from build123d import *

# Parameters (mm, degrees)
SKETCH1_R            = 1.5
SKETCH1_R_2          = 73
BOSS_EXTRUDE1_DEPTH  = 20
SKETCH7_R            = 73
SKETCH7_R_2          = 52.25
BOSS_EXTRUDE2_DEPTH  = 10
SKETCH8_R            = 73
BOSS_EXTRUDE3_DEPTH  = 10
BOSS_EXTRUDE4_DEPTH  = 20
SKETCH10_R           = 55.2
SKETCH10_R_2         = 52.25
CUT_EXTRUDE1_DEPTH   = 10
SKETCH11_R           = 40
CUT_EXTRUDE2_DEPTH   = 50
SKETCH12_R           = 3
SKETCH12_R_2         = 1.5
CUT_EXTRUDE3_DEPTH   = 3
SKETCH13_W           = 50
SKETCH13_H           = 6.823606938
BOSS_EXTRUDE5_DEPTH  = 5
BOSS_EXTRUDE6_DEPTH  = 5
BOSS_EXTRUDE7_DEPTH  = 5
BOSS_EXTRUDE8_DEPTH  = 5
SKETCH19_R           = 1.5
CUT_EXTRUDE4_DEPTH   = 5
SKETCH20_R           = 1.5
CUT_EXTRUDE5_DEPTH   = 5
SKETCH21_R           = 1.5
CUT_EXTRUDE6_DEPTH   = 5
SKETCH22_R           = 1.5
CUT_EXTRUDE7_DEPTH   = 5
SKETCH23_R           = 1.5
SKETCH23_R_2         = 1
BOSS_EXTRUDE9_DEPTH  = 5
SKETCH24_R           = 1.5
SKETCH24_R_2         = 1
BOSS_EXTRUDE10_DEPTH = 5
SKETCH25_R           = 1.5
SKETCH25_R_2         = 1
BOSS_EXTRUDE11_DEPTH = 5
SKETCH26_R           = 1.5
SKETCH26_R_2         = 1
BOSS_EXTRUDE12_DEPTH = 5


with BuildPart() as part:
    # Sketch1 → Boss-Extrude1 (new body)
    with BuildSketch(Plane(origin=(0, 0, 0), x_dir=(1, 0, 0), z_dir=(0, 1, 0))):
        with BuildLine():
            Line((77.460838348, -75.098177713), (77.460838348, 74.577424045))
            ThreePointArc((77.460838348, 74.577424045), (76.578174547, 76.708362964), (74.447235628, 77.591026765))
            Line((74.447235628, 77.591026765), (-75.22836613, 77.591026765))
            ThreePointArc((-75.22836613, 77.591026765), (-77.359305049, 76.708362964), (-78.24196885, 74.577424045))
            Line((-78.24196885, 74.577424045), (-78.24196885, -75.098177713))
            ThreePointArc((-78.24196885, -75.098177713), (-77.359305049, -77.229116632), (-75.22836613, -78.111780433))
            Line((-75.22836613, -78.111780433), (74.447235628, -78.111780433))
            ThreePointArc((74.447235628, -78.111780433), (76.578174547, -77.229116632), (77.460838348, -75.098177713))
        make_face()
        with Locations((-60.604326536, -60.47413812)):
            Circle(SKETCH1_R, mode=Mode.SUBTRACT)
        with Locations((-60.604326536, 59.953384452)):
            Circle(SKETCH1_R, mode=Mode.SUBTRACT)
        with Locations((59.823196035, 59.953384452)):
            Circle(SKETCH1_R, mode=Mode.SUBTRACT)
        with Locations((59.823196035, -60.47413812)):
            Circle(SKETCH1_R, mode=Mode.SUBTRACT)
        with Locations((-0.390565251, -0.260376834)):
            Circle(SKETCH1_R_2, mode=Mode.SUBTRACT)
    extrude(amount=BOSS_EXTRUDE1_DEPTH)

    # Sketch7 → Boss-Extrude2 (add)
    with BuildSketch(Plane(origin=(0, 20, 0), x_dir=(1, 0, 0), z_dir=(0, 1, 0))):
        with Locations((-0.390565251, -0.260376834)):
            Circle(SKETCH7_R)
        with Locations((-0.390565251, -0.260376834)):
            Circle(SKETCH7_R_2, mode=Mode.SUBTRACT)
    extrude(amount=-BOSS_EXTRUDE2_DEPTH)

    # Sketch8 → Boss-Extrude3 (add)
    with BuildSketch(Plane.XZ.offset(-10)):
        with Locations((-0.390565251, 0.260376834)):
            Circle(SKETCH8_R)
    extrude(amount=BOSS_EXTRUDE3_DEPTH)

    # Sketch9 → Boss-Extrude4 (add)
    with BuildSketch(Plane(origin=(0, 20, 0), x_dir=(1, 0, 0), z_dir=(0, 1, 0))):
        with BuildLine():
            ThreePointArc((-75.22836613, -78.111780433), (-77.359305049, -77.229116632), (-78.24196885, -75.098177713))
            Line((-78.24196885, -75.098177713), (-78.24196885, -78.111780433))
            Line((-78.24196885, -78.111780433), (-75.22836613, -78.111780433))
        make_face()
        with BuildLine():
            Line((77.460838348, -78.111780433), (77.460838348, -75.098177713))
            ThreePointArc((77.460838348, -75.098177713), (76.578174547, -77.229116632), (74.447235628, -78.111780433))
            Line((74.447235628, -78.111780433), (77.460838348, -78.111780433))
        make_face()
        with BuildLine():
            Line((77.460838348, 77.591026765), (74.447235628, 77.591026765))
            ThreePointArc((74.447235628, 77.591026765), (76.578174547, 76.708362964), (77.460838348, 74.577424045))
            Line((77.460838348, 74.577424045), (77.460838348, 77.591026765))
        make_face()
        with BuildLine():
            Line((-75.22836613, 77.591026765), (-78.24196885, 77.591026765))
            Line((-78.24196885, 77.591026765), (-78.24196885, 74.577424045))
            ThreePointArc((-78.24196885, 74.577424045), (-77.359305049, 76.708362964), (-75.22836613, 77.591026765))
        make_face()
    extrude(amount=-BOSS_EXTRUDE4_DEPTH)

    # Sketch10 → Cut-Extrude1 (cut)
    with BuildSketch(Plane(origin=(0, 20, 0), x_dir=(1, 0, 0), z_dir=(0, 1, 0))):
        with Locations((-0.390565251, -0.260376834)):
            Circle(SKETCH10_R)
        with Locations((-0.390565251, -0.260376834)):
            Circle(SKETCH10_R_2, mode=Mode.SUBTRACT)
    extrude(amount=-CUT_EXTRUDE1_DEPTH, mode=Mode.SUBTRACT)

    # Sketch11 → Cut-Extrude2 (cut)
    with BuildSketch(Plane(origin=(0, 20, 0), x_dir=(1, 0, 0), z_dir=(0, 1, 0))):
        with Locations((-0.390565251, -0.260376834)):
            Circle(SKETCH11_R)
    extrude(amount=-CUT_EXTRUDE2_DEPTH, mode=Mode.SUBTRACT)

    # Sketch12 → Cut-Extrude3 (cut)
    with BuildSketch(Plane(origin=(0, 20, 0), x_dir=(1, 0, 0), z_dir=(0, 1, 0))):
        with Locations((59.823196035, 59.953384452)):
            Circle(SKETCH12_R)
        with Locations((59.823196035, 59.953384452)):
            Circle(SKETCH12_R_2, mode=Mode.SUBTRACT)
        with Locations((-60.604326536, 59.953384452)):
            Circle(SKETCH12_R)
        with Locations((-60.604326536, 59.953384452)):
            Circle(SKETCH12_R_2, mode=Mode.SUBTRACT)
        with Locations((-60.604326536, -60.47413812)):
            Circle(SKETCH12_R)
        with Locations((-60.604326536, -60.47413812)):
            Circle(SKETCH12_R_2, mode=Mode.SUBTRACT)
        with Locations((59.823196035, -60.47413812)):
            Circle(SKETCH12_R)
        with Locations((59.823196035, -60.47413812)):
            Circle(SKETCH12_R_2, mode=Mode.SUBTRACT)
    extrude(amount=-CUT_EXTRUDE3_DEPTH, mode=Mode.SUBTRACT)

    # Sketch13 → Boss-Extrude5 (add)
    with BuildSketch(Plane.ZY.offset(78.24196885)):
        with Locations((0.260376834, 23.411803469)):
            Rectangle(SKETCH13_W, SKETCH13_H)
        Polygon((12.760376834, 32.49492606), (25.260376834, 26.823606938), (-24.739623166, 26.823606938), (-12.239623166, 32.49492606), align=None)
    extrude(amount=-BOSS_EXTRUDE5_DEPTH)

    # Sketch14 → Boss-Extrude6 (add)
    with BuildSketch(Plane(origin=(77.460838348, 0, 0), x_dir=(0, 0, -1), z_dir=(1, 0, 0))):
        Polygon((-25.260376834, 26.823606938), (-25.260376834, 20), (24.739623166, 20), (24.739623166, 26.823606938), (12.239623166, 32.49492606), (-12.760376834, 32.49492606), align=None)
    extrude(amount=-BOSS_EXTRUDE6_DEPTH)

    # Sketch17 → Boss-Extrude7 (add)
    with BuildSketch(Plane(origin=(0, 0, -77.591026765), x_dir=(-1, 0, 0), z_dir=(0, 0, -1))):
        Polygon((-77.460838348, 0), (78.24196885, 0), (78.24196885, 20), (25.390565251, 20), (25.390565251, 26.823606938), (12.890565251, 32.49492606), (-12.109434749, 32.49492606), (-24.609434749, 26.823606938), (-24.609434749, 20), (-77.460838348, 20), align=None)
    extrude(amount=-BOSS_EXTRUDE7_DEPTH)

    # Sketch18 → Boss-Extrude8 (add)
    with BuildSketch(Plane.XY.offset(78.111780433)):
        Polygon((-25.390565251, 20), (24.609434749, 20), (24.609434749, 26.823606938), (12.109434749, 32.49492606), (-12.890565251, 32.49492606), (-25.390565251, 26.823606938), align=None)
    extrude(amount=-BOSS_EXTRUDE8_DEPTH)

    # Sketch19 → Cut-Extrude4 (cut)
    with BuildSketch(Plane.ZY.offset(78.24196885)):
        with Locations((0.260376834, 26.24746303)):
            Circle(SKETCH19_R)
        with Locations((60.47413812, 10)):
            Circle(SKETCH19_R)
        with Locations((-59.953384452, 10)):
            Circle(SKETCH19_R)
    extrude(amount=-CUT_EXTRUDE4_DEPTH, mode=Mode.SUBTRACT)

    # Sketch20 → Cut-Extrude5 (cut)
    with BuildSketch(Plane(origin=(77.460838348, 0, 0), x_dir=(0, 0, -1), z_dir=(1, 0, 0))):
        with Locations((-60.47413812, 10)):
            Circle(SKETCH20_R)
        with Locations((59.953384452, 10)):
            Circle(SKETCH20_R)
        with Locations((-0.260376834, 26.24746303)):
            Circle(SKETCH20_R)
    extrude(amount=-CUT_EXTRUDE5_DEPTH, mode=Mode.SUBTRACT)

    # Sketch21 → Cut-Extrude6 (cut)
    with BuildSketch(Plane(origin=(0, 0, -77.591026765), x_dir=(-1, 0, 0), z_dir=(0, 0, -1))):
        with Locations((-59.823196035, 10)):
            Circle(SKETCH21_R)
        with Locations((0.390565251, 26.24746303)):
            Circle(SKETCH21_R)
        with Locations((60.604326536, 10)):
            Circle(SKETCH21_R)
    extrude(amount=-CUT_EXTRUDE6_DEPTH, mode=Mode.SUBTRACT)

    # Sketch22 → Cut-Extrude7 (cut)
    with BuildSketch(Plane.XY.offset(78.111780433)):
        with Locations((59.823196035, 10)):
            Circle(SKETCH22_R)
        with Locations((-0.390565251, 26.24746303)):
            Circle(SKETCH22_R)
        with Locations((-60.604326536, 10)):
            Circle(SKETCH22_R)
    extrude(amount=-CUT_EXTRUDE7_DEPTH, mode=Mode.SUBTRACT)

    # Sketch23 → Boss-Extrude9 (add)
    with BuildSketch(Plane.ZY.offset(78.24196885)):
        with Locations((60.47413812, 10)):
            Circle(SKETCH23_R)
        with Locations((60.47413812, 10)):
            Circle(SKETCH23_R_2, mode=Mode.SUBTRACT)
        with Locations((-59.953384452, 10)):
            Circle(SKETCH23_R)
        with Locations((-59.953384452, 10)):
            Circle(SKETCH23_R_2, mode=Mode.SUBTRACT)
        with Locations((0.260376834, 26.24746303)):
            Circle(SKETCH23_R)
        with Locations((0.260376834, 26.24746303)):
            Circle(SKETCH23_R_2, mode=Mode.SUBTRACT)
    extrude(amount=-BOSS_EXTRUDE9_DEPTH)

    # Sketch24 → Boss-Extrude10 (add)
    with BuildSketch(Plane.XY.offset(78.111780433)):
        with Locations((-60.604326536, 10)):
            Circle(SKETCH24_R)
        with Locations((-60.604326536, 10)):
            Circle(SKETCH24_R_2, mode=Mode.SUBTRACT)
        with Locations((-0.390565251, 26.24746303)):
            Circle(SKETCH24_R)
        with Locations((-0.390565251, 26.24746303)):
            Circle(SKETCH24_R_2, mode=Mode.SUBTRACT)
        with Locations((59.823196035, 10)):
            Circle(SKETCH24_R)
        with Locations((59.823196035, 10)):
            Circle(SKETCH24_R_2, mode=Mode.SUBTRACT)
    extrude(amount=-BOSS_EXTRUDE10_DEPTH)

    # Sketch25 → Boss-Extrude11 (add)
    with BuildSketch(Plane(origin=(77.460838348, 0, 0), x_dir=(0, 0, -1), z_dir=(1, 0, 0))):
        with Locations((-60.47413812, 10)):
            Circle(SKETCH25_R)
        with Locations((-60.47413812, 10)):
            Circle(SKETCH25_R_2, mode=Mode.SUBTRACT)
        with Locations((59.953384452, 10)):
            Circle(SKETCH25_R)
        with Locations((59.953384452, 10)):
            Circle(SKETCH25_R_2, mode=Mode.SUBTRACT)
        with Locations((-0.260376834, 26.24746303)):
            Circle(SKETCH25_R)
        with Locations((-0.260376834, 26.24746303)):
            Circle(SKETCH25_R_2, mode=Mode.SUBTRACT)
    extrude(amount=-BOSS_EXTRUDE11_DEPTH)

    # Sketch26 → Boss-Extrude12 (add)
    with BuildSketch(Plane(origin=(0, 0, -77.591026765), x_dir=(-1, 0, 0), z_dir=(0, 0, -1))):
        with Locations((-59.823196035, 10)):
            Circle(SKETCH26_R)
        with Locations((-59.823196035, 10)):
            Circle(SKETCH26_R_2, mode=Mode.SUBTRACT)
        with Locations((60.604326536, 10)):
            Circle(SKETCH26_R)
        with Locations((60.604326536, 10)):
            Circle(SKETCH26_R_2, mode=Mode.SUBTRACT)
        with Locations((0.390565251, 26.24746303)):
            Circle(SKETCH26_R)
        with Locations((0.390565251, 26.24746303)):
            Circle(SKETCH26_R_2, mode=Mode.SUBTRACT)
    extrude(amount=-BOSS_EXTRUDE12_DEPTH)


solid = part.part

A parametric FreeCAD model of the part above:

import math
import FreeCAD as App
import Part
import Sketcher


def add_polygon(sketch, points):
    """Adds a closed chain of lines whose ends are joined by coincident constraints."""
    first, n = sketch.GeometryCount, len(points)
    for a, b in zip(points, points[1:] + points[:1]):
        sketch.addGeometry(Part.LineSegment(App.Vector(*a, 0), App.Vector(*b, 0)), False)
    for i in range(n):
        sketch.addConstraint(Sketcher.Constraint("Coincident", first + i, 2, first + (i + 1) % n, 1))

doc = App.newDocument("Part")
body = doc.addObject("PartDesign::Body", "Body")

sketch1 = body.newObject("Sketcher::SketchObject", "Sketch")
sketch1.AttachmentSupport = (doc.getObject("XZ_Plane"), [""])
sketch1.MapMode = "FlatFace"
sketch1.addGeometry(Part.LineSegment(App.Vector(77.5, 75.1, 0), App.Vector(77.5, -74.6, 0)), False)
sketch1.addGeometry(Part.ArcOfCircle(Part.Circle(App.Vector(74.4, -74.6, 0), App.Vector(0, 0, 1), 3), math.radians(-90), math.radians(0)), False)
sketch1.addGeometry(Part.LineSegment(App.Vector(74.4, -77.6, 0), App.Vector(-75.2, -77.6, 0)), False)
sketch1.addGeometry(Part.ArcOfCircle(Part.Circle(App.Vector(-75.2, -74.6, 0), App.Vector(0, 0, 1), 3), math.radians(180), math.radians(270)), False)
sketch1.addGeometry(Part.LineSegment(App.Vector(-78.2, -74.6, 0), App.Vector(-78.2, 75.1, 0)), False)
sketch1.addGeometry(Part.ArcOfCircle(Part.Circle(App.Vector(-75.2, 75.1, 0), App.Vector(0, 0, 1), 3), math.radians(90), math.radians(180)), False)
sketch1.addGeometry(Part.LineSegment(App.Vector(-75.2, 78.1, 0), App.Vector(74.4, 78.1, 0)), False)
sketch1.addGeometry(Part.ArcOfCircle(Part.Circle(App.Vector(74.4, 75.1, 0), App.Vector(0, 0, 1), 3), math.radians(0), math.radians(90)), False)
sketch1.addGeometry(Part.Circle(App.Vector(-60.6, 60.5, 0), App.Vector(0, 0, 1), 1.5), False)
sketch1.addGeometry(Part.Circle(App.Vector(59.8, 60.5, 0), App.Vector(0, 0, 1), 1.5), False)
sketch1.addGeometry(Part.Circle(App.Vector(-60.6, -60, 0), App.Vector(0, 0, 1), 1.5), False)
sketch1.addGeometry(Part.Circle(App.Vector(-0.4, 0.3, 0), App.Vector(0, 0, 1), 73), False)
sketch1.addGeometry(Part.Circle(App.Vector(59.8, -60, 0), App.Vector(0, 0, 1), 1.5), False)
sketch1.addConstraint(Sketcher.Constraint("Tangent", 0, 2, 1, 2))
sketch1.addConstraint(Sketcher.Constraint("Tangent", 1, 1, 2, 1))
sketch1.addConstraint(Sketcher.Constraint("Tangent", 2, 2, 3, 2))
sketch1.addConstraint(Sketcher.Constraint("Tangent", 3, 1, 4, 1))
sketch1.addConstraint(Sketcher.Constraint("Tangent", 4, 2, 5, 2))
sketch1.addConstraint(Sketcher.Constraint("Tangent", 5, 1, 6, 1))
sketch1.addConstraint(Sketcher.Constraint("Tangent", 6, 2, 7, 2))
sketch1.addConstraint(Sketcher.Constraint("Tangent", 7, 1, 0, 1))
sketch1.addConstraint(Sketcher.Constraint("Vertical", 0))
sketch1.addConstraint(Sketcher.Constraint("Horizontal", 2))
sketch1.addConstraint(Sketcher.Constraint("Vertical", 4))
sketch1.addConstraint(Sketcher.Constraint("Horizontal", 6))
sketch1.addConstraint(Sketcher.Constraint("Equal", 1, 3))
sketch1.addConstraint(Sketcher.Constraint("Equal", 3, 5))
sketch1.addConstraint(Sketcher.Constraint("Equal", 5, 7))
sketch1.addConstraint(Sketcher.Constraint("Equal", 8, 9))
sketch1.addConstraint(Sketcher.Constraint("Equal", 9, 10))
sketch1.addConstraint(Sketcher.Constraint("Equal", 10, 12))
sketch1.addConstraint(Sketcher.Constraint("Horizontal", 8, 3, 9, 3))
sketch1.addConstraint(Sketcher.Constraint("Horizontal", 10, 3, 12, 3))
sketch1.addConstraint(Sketcher.Constraint("Vertical", 8, 3, 10, 3))
sketch1.addConstraint(Sketcher.Constraint("Vertical", 9, 3, 12, 3))
sketch1.addConstraint(Sketcher.Constraint("Equal", 6, 0))
sketch1.addConstraint(Sketcher.Constraint("Diameter", 8, 3.0))
sketch1.addConstraint(Sketcher.Constraint("Diameter", 11, 146.0))
sketch1.addConstraint(Sketcher.Constraint("DistanceX", 2, 2, 2, 1, 149.675602))
sketch1.addConstraint(Sketcher.Constraint("Radius", 1, 3.013603))
sketch1.addConstraint(Sketcher.Constraint("DistanceX", 11, 3, 1, 3, 74.837801))
sketch1.addConstraint(Sketcher.Constraint("DistanceY", 1, 3, 11, 3, 74.837801))
sketch1.addConstraint(Sketcher.Constraint("DistanceY", -1, 1, 8, 3, 60.474138))
sketch1.addConstraint(Sketcher.Constraint("DistanceX", -1, 1, 0, 2, 77.460838))
sketch1.addConstraint(Sketcher.Constraint("DistanceY", -1, 1, 5, 1, 78.11178))
sketch1.addConstraint(Sketcher.Constraint("DistanceX", 5, 3, 8, 3, 14.62404))
sketch1.addConstraint(Sketcher.Constraint("DistanceX", 9, 3, 7, 3, 14.62404))
sketch1.addConstraint(Sketcher.Constraint("DistanceY", 3, 3, 10, 3, 14.62404))
pad1 = body.newObject("PartDesign::Pad", "Pad")
pad1.Profile = sketch1
pad1.Length = 20
pad1.Reversed = True

sketch2 = body.newObject("Sketcher::SketchObject", "Sketch001")
sketch2.AttachmentSupport = (doc.getObject("XZ_Plane"), [""])
sketch2.MapMode = "FlatFace"
sketch2.AttachmentOffset = App.Placement(App.Vector(0, 0, -20), App.Rotation())
sketch2.addGeometry(Part.Circle(App.Vector(0, 0, 0), App.Vector(0, 0, 1), 73), False)
sketch2.addGeometry(Part.Circle(App.Vector(0, 0, 0), App.Vector(0, 0, 1), 52), False)
sketch2.addConstraint(Sketcher.Constraint("Coincident", 1, 3, 0, 3))
sketch2.addConstraint(Sketcher.Constraint("Diameter", 0, 146.0))
sketch2.addConstraint(Sketcher.Constraint("Diameter", 1, 104.5))
sketch2.addConstraint(Sketcher.Constraint("DistanceX", 0, 3, -1, 1, 0.390565))
sketch2.addConstraint(Sketcher.Constraint("DistanceY", -1, 1, 0, 3, 0.260377))
pad2 = body.newObject("PartDesign::Pad", "Pad001")
pad2.Profile = sketch2
pad2.Length = 10

sketch3 = body.newObject("Sketcher::SketchObject", "Sketch002")
sketch3.AttachmentSupport = (doc.getObject("XZ_Plane"), [""])
sketch3.MapMode = "FlatFace"
sketch3.AttachmentOffset = App.Placement(App.Vector(0, 0, -10), App.Rotation())
sketch3.addGeometry(Part.Circle(App.Vector(0, 0, 0), App.Vector(0, 0, 1), 73), False)
sketch3.addConstraint(Sketcher.Constraint("Diameter", 0, 146.0))
sketch3.addConstraint(Sketcher.Constraint("DistanceX", 0, 3, -1, 1, 0.390565))
sketch3.addConstraint(Sketcher.Constraint("DistanceY", -1, 1, 0, 3, 0.260377))
pad3 = body.newObject("PartDesign::Pad", "Pad002")
pad3.Profile = sketch3
pad3.Length = 10

sketch4 = body.newObject("Sketcher::SketchObject", "Sketch003")
sketch4.AttachmentSupport = (doc.getObject("XZ_Plane"), [""])
sketch4.MapMode = "FlatFace"
sketch4.AttachmentOffset = App.Placement(App.Vector(0, 0, -20), App.Rotation())
sketch4.addGeometry(Part.ArcOfCircle(Part.Circle(App.Vector(-75.2, 75.1, 0), App.Vector(0, 0, 1), 3), math.radians(90), math.radians(180)), False)
sketch4.addGeometry(Part.LineSegment(App.Vector(-78.2, 75.1, 0), App.Vector(-78.2, 78.1, 0)), False)
sketch4.addGeometry(Part.LineSegment(App.Vector(-78.2, 78.1, 0), App.Vector(-75.2, 78.1, 0)), False)
sketch4.addGeometry(Part.LineSegment(App.Vector(77.5, 78.1, 0), App.Vector(77.5, 75.1, 0)), False)
sketch4.addGeometry(Part.ArcOfCircle(Part.Circle(App.Vector(74.4, 75.1, 0), App.Vector(0, 0, 1), 3), math.radians(0), math.radians(90)), False)
sketch4.addGeometry(Part.LineSegment(App.Vector(74.4, 78.1, 0), App.Vector(77.5, 78.1, 0)), False)
sketch4.addGeometry(Part.LineSegment(App.Vector(77.5, -77.6, 0), App.Vector(74.4, -77.6, 0)), False)
sketch4.addGeometry(Part.ArcOfCircle(Part.Circle(App.Vector(74.4, -74.6, 0), App.Vector(0, 0, 1), 3), math.radians(-90), math.radians(0)), False)
sketch4.addGeometry(Part.LineSegment(App.Vector(77.5, -74.6, 0), App.Vector(77.5, -77.6, 0)), False)
sketch4.addGeometry(Part.LineSegment(App.Vector(-75.2, -77.6, 0), App.Vector(-78.2, -77.6, 0)), False)
sketch4.addGeometry(Part.LineSegment(App.Vector(-78.2, -77.6, 0), App.Vector(-78.2, -74.6, 0)), False)
sketch4.addGeometry(Part.ArcOfCircle(Part.Circle(App.Vector(-75.2, -74.6, 0), App.Vector(0, 0, 1), 3), math.radians(180), math.radians(270)), False)
sketch4.addConstraint(Sketcher.Constraint("Tangent", 0, 2, 1, 1))
sketch4.addConstraint(Sketcher.Constraint("Coincident", 1, 2, 2, 1))
sketch4.addConstraint(Sketcher.Constraint("Tangent", 2, 2, 0, 1))
sketch4.addConstraint(Sketcher.Constraint("Tangent", 3, 2, 4, 1))
sketch4.addConstraint(Sketcher.Constraint("Tangent", 4, 2, 5, 1))
sketch4.addConstraint(Sketcher.Constraint("Coincident", 5, 2, 3, 1))
sketch4.addConstraint(Sketcher.Constraint("Tangent", 6, 2, 7, 1))
sketch4.addConstraint(Sketcher.Constraint("Tangent", 7, 2, 8, 1))
sketch4.addConstraint(Sketcher.Constraint("Coincident", 8, 2, 6, 1))
sketch4.addConstraint(Sketcher.Constraint("Coincident", 9, 2, 10, 1))
sketch4.addConstraint(Sketcher.Constraint("Tangent", 10, 2, 11, 1))
sketch4.addConstraint(Sketcher.Constraint("Tangent", 11, 2, 9, 1))
sketch4.addConstraint(Sketcher.Constraint("Vertical", 1))
sketch4.addConstraint(Sketcher.Constraint("Horizontal", 2))
sketch4.addConstraint(Sketcher.Constraint("Vertical", 3))
sketch4.addConstraint(Sketcher.Constraint("Horizontal", 5))
sketch4.addConstraint(Sketcher.Constraint("Horizontal", 6))
sketch4.addConstraint(Sketcher.Constraint("Vertical", 8))
sketch4.addConstraint(Sketcher.Constraint("Horizontal", 9))
sketch4.addConstraint(Sketcher.Constraint("Vertical", 10))
sketch4.addConstraint(Sketcher.Constraint("Equal", 0, 4))
sketch4.addConstraint(Sketcher.Constraint("Equal", 4, 7))
sketch4.addConstraint(Sketcher.Constraint("Equal", 7, 11))
sketch4.addConstraint(Sketcher.Constraint("Horizontal", 0, 3, 4, 3))
sketch4.addConstraint(Sketcher.Constraint("Horizontal", 7, 3, 11, 3))
sketch4.addConstraint(Sketcher.Constraint("Vertical", 4, 3, 7, 3))
sketch4.addConstraint(Sketcher.Constraint("Vertical", 0, 3, 11, 3))
sketch4.addConstraint(Sketcher.Constraint("Radius", 0, 3.013603))
sketch4.addConstraint(Sketcher.Constraint("DistanceX", 0, 3, 4, 3, 149.675602))
sketch4.addConstraint(Sketcher.Constraint("DistanceY", 7, 3, 4, 3, 149.675602))
sketch4.addConstraint(Sketcher.Constraint("DistanceX", 0, 2, -1, 1, 78.241969))
sketch4.addConstraint(Sketcher.Constraint("DistanceY", -1, 1, 1, 2, 78.11178))
pad4 = body.newObject("PartDesign::Pad", "Pad003")
pad4.Profile = sketch4
pad4.Length = 20

sketch5 = body.newObject("Sketcher::SketchObject", "Sketch004")
sketch5.AttachmentSupport = (doc.getObject("XZ_Plane"), [""])
sketch5.MapMode = "FlatFace"
sketch5.AttachmentOffset = App.Placement(App.Vector(0, 0, -20), App.Rotation())
sketch5.addGeometry(Part.Circle(App.Vector(0, 0, 0), App.Vector(0, 0, 1), 55), False)
sketch5.addGeometry(Part.Circle(App.Vector(0, 0, 0), App.Vector(0, 0, 1), 52), False)
sketch5.addConstraint(Sketcher.Constraint("Coincident", 1, 3, 0, 3))
sketch5.addConstraint(Sketcher.Constraint("Diameter", 0, 110.4))
sketch5.addConstraint(Sketcher.Constraint("Diameter", 1, 104.5))
sketch5.addConstraint(Sketcher.Constraint("DistanceX", 0, 3, -1, 1, 0.390565))
sketch5.addConstraint(Sketcher.Constraint("DistanceY", -1, 1, 0, 3, 0.260377))
pocket1 = body.newObject("PartDesign::Pocket", "Pocket")
pocket1.Profile = sketch5
pocket1.Length = 10
pocket1.Reversed = True

sketch6 = body.newObject("Sketcher::SketchObject", "Sketch005")
sketch6.AttachmentSupport = (doc.getObject("XZ_Plane"), [""])
sketch6.MapMode = "FlatFace"
sketch6.AttachmentOffset = App.Placement(App.Vector(0, 0, -20), App.Rotation())
sketch6.addGeometry(Part.Circle(App.Vector(0, 0, 0), App.Vector(0, 0, 1), 40), False)
sketch6.addConstraint(Sketcher.Constraint("Diameter", 0, 80.0))
sketch6.addConstraint(Sketcher.Constraint("DistanceX", 0, 3, -1, 1, 0.390565))
sketch6.addConstraint(Sketcher.Constraint("DistanceY", -1, 1, 0, 3, 0.260377))
pocket2 = body.newObject("PartDesign::Pocket", "Pocket001")
pocket2.Profile = sketch6
pocket2.Length = 50
pocket2.Reversed = True

sketch7 = body.newObject("Sketcher::SketchObject", "Sketch006")
sketch7.AttachmentSupport = (doc.getObject("XZ_Plane"), [""])
sketch7.MapMode = "FlatFace"
sketch7.AttachmentOffset = App.Placement(App.Vector(0, 0, -20), App.Rotation())
sketch7.addGeometry(Part.Circle(App.Vector(59.8, -60, 0), App.Vector(0, 0, 1), 3), False)
sketch7.addGeometry(Part.Circle(App.Vector(59.8, -60, 0), App.Vector(0, 0, 1), 1.5), False)
sketch7.addGeometry(Part.Circle(App.Vector(-60.6, -60, 0), App.Vector(0, 0, 1), 3), False)
sketch7.addGeometry(Part.Circle(App.Vector(-60.6, -60, 0), App.Vector(0, 0, 1), 1.5), False)
sketch7.addGeometry(Part.Circle(App.Vector(-60.6, 60.5, 0), App.Vector(0, 0, 1), 3), False)
sketch7.addGeometry(Part.Circle(App.Vector(-60.6, 60.5, 0), App.Vector(0, 0, 1), 1.5), False)
sketch7.addGeometry(Part.Circle(App.Vector(59.8, 60.5, 0), App.Vector(0, 0, 1), 3), False)
sketch7.addGeometry(Part.Circle(App.Vector(59.8, 60.5, 0), App.Vector(0, 0, 1), 1.5), False)
sketch7.addConstraint(Sketcher.Constraint("Coincident", 1, 3, 0, 3))
sketch7.addConstraint(Sketcher.Constraint("Coincident", 3, 3, 2, 3))
sketch7.addConstraint(Sketcher.Constraint("Coincident", 5, 3, 4, 3))
sketch7.addConstraint(Sketcher.Constraint("Coincident", 7, 3, 6, 3))
sketch7.addConstraint(Sketcher.Constraint("Equal", 0, 2))
sketch7.addConstraint(Sketcher.Constraint("Equal", 1, 3))
sketch7.addConstraint(Sketcher.Constraint("Equal", 2, 4))
sketch7.addConstraint(Sketcher.Constraint("Equal", 3, 5))
sketch7.addConstraint(Sketcher.Constraint("Equal", 4, 6))
sketch7.addConstraint(Sketcher.Constraint("Equal", 5, 7))
sketch7.addConstraint(Sketcher.Constraint("Horizontal", 1, 3, 2, 3))
sketch7.addConstraint(Sketcher.Constraint("Horizontal", 5, 3, 6, 3))
sketch7.addConstraint(Sketcher.Constraint("Vertical", 3, 3, 4, 3))
sketch7.addConstraint(Sketcher.Constraint("Vertical", 1, 3, 6, 3))
sketch7.addConstraint(Sketcher.Constraint("Diameter", 0, 6.0))
sketch7.addConstraint(Sketcher.Constraint("Diameter", 1, 3.0))
sketch7.addConstraint(Sketcher.Constraint("DistanceY", -1, 1, 4, 3, 60.474138))
sketch7.addConstraint(Sketcher.Constraint("DistanceX", -1, 1, 0, 3, 59.823196))
sketch7.addConstraint(Sketcher.Constraint("DistanceY", 0, 3, -1, 1, 59.953384))
sketch7.addConstraint(Sketcher.Constraint("DistanceX", 2, 3, -1, 1, 60.604327))
pocket3 = body.newObject("PartDesign::Pocket", "Pocket002")
pocket3.Profile = sketch7
pocket3.Length = 3
pocket3.Reversed = True

sketch8 = body.newObject("Sketcher::SketchObject", "Sketch007")
sketch8.AttachmentSupport = (doc.getObject("YZ_Plane"), [""])
sketch8.MapMode = "FlatFace"
sketch8.AttachmentOffset = App.Placement(App.Vector(0, 0, -78.241969), App.Rotation())
add_polygon(sketch8, [(27, -25), (20, -25), (20, 25), (27, 25), (32, 13), (32, -12)])
sketch8.addConstraint(Sketcher.Constraint("Horizontal", 0))
sketch8.addConstraint(Sketcher.Constraint("Vertical", 1))
sketch8.addConstraint(Sketcher.Constraint("Horizontal", 2))
sketch8.addConstraint(Sketcher.Constraint("Vertical", 4))
sketch8.addConstraint(Sketcher.Constraint("Vertical", 2, 2, 5, 2))
sketch8.addConstraint(Sketcher.Constraint("Equal", 3, 5))
sketch8.addConstraint(Sketcher.Constraint("DistanceY", 1, 1, 1, 2, 50.0))
sketch8.addConstraint(Sketcher.Constraint("DistanceY", 4, 2, 4, 1, 25.0))
sketch8.addConstraint(Sketcher.Constraint("DistanceX", -1, 1, 0, 2, 20.0))
sketch8.addConstraint(Sketcher.Constraint("DistanceX", 0, 2, 0, 1, 6.823607))
sketch8.addConstraint(Sketcher.Constraint("DistanceX", 2, 2, 3, 2, 5.671319))
sketch8.addConstraint(Sketcher.Constraint("DistanceY", 0, 2, -1, 1, 24.739623))
pad5 = body.newObject("PartDesign::Pad", "Pad004")
pad5.Profile = sketch8
pad5.Length = 5

sketch9 = body.newObject("Sketcher::SketchObject", "Sketch008")
sketch9.AttachmentSupport = (doc.getObject("YZ_Plane"), [""])
sketch9.MapMode = "FlatFace"
sketch9.AttachmentOffset = App.Placement(App.Vector(0, 0, 77.460838), App.Rotation())
add_polygon(sketch9, [(27, 25), (20, 25), (20, -25), (27, -25), (32, -12), (32, 13)])
sketch9.addConstraint(Sketcher.Constraint("Horizontal", 0))
sketch9.addConstraint(Sketcher.Constraint("Vertical", 1))
sketch9.addConstraint(Sketcher.Constraint("Horizontal", 2))
sketch9.addConstraint(Sketcher.Constraint("Vertical", 4))
sketch9.addConstraint(Sketcher.Constraint("Vertical", 2, 2, 5, 2))
sketch9.addConstraint(Sketcher.Constraint("Equal", 3, 5))
sketch9.addConstraint(Sketcher.Constraint("DistanceY", 1, 2, 1, 1, 50.0))
sketch9.addConstraint(Sketcher.Constraint("DistanceY", 4, 1, 4, 2, 25.0))
sketch9.addConstraint(Sketcher.Constraint("DistanceX", -1, 1, 0, 2, 20.0))
sketch9.addConstraint(Sketcher.Constraint("DistanceX", 0, 2, 0, 1, 6.823607))
sketch9.addConstraint(Sketcher.Constraint("DistanceX", 2, 2, 3, 2, 5.671319))
sketch9.addConstraint(Sketcher.Constraint("DistanceY", -1, 1, 0, 2, 25.260377))
pad6 = body.newObject("PartDesign::Pad", "Pad005")
pad6.Profile = sketch9
pad6.Length = 5
pad6.Reversed = True

sketch10 = body.newObject("Sketcher::SketchObject", "Sketch009")
sketch10.AttachmentSupport = (doc.getObject("XY_Plane"), [""])
sketch10.MapMode = "FlatFace"
sketch10.AttachmentOffset = App.Placement(App.Vector(0, 0, -77.591027), App.Rotation())
add_polygon(sketch10, [(77, 0), (-78, 0), (-78, 20), (-25, 20), (-25, 27), (-13, 32), (12, 32), (25, 27), (25, 20), (77, 20)])
sketch10.addConstraint(Sketcher.Constraint("Horizontal", 0))
sketch10.addConstraint(Sketcher.Constraint("Vertical", 1))
sketch10.addConstraint(Sketcher.Constraint("Horizontal", 2))
sketch10.addConstraint(Sketcher.Constraint("Vertical", 3))
sketch10.addConstraint(Sketcher.Constraint("Horizontal", 5))
sketch10.addConstraint(Sketcher.Constraint("Vertical", 7))
sketch10.addConstraint(Sketcher.Constraint("Horizontal", 8))
sketch10.addConstraint(Sketcher.Constraint("Vertical", 9))
sketch10.addConstraint(Sketcher.Constraint("PointOnObject", 0, 2, -1))
sketch10.addConstraint(Sketcher.Constraint("Horizontal", 3, 2, 6, 2))
sketch10.addConstraint(Sketcher.Constraint("Horizontal", 2, 2, 7, 2))
sketch10.addConstraint(Sketcher.Constraint("Equal", 2, 8))
sketch10.addConstraint(Sketcher.Constraint("Equal", 4, 6))
sketch10.addConstraint(Sketcher.Constraint("DistanceX", 5, 1, 5, 2, 25.0))
sketch10.addConstraint(Sketcher.Constraint("DistanceY", 1, 1, 1, 2, 20.0))
sketch10.addConstraint(Sketcher.Constraint("DistanceX", 3, 2, 6, 2, 50.0))
sketch10.addConstraint(Sketcher.Constraint("DistanceX", 0, 2, 0, 1, 155.702807))
sketch10.addConstraint(Sketcher.Constraint("DistanceY", 3, 1, 3, 2, 6.823607))
sketch10.addConstraint(Sketcher.Constraint("DistanceX", 0, 2, -1, 1, 78.241969))
sketch10.addConstraint(Sketcher.Constraint("DistanceY", 3, 2, 4, 2, 5.671319))
pad7 = body.newObject("PartDesign::Pad", "Pad006")
pad7.Profile = sketch10
pad7.Length = 5

sketch11 = body.newObject("Sketcher::SketchObject", "Sketch010")
sketch11.AttachmentSupport = (doc.getObject("XY_Plane"), [""])
sketch11.MapMode = "FlatFace"
sketch11.AttachmentOffset = App.Placement(App.Vector(0, 0, 78.11178), App.Rotation())
add_polygon(sketch11, [(-25, 20), (25, 20), (25, 27), (12, 32), (-13, 32), (-25, 27)])
sketch11.addConstraint(Sketcher.Constraint("Horizontal", 0))
sketch11.addConstraint(Sketcher.Constraint("Vertical", 1))
sketch11.addConstraint(Sketcher.Constraint("Horizontal", 3))
sketch11.addConstraint(Sketcher.Constraint("Vertical", 5))
sketch11.addConstraint(Sketcher.Constraint("Horizontal", 1, 2, 4, 2))
sketch11.addConstraint(Sketcher.Constraint("Equal", 2, 4))
sketch11.addConstraint(Sketcher.Constraint("DistanceX", 0, 1, 0, 2, 50.0))
sketch11.addConstraint(Sketcher.Constraint("DistanceX", 3, 2, 3, 1, 25.0))
sketch11.addConstraint(Sketcher.Constraint("DistanceY", -1, 1, 0, 2, 20.0))
sketch11.addConstraint(Sketcher.Constraint("DistanceY", 1, 1, 1, 2, 6.823607))
sketch11.addConstraint(Sketcher.Constraint("DistanceY", 1, 2, 2, 2, 5.671319))
sketch11.addConstraint(Sketcher.Constraint("DistanceX", -1, 1, 0, 2, 24.609435))
pad8 = body.newObject("PartDesign::Pad", "Pad007")
pad8.Profile = sketch11
pad8.Length = 5
pad8.Reversed = True

sketch12 = body.newObject("Sketcher::SketchObject", "Sketch011")
sketch12.AttachmentSupport = (doc.getObject("YZ_Plane"), [""])
sketch12.MapMode = "FlatFace"
sketch12.AttachmentOffset = App.Placement(App.Vector(0, 0, -78.241969), App.Rotation())
sketch12.addGeometry(Part.Circle(App.Vector(26.2, 0.3, 0), App.Vector(0, 0, 1), 1.5), False)
sketch12.addGeometry(Part.Circle(App.Vector(10, 60.5, 0), App.Vector(0, 0, 1), 1.5), False)
sketch12.addGeometry(Part.Circle(App.Vector(10, -60, 0), App.Vector(0, 0, 1), 1.5), False)
sketch12.addConstraint(Sketcher.Constraint("Equal", 0, 1))
sketch12.addConstraint(Sketcher.Constraint("Equal", 1, 2))
sketch12.addConstraint(Sketcher.Constraint("Vertical", 1, 3, 2, 3))
sketch12.addConstraint(Sketcher.Constraint("Diameter", 0, 3.0))
sketch12.addConstraint(Sketcher.Constraint("DistanceX", -1, 1, 1, 3, 10.0))
sketch12.addConstraint(Sketcher.Constraint("DistanceY", -1, 1, 1, 3, 60.474138))
sketch12.addConstraint(Sketcher.Constraint("DistanceY", 0, 3, 1, 3, 60.213761))
sketch12.addConstraint(Sketcher.Constraint("DistanceY", 2, 3, 0, 3, 60.213761))
sketch12.addConstraint(Sketcher.Constraint("DistanceX", -1, 1, 0, 3, 26.247463))
pocket4 = body.newObject("PartDesign::Pocket", "Pocket003")
pocket4.Profile = sketch12
pocket4.Length = 5
pocket4.Reversed = True

sketch13 = body.newObject("Sketcher::SketchObject", "Sketch012")
sketch13.AttachmentSupport = (doc.getObject("YZ_Plane"), [""])
sketch13.MapMode = "FlatFace"
sketch13.AttachmentOffset = App.Placement(App.Vector(0, 0, 77.460838), App.Rotation())
sketch13.addGeometry(Part.Circle(App.Vector(10, 60.5, 0), App.Vector(0, 0, 1), 1.5), False)
sketch13.addGeometry(Part.Circle(App.Vector(10, -60, 0), App.Vector(0, 0, 1), 1.5), False)
sketch13.addGeometry(Part.Circle(App.Vector(26.2, 0.3, 0), App.Vector(0, 0, 1), 1.5), False)
sketch13.addConstraint(Sketcher.Constraint("Equal", 0, 1))
sketch13.addConstraint(Sketcher.Constraint("Equal", 1, 2))
sketch13.addConstraint(Sketcher.Constraint("Vertical", 0, 3, 1, 3))
sketch13.addConstraint(Sketcher.Constraint("Diameter", 0, 3.0))
sketch13.addConstraint(Sketcher.Constraint("DistanceX", -1, 1, 0, 3, 10.0))
sketch13.addConstraint(Sketcher.Constraint("DistanceY", -1, 1, 0, 3, 60.474138))
sketch13.addConstraint(Sketcher.Constraint("DistanceY", 2, 3, 0, 3, 60.213761))
sketch13.addConstraint(Sketcher.Constraint("DistanceY", 1, 3, 2, 3, 60.213761))
sketch13.addConstraint(Sketcher.Constraint("DistanceX", -1, 1, 2, 3, 26.247463))
pocket5 = body.newObject("PartDesign::Pocket", "Pocket004")
pocket5.Profile = sketch13
pocket5.Length = 5

sketch14 = body.newObject("Sketcher::SketchObject", "Sketch013")
sketch14.AttachmentSupport = (doc.getObject("XY_Plane"), [""])
sketch14.MapMode = "FlatFace"
sketch14.AttachmentOffset = App.Placement(App.Vector(0, 0, -77.591027), App.Rotation())
sketch14.addGeometry(Part.Circle(App.Vector(59.8, 10, 0), App.Vector(0, 0, 1), 1.5), False)
sketch14.addGeometry(Part.Circle(App.Vector(-0.4, 26.2, 0), App.Vector(0, 0, 1), 1.5), False)
sketch14.addGeometry(Part.Circle(App.Vector(-60.6, 10, 0), App.Vector(0, 0, 1), 1.5), False)
sketch14.addConstraint(Sketcher.Constraint("Equal", 0, 1))
sketch14.addConstraint(Sketcher.Constraint("Equal", 1, 2))
sketch14.addConstraint(Sketcher.Constraint("Horizontal", 0, 3, 2, 3))
sketch14.addConstraint(Sketcher.Constraint("Diameter", 0, 3.0))
sketch14.addConstraint(Sketcher.Constraint("DistanceY", -1, 1, 0, 3, 10.0))
sketch14.addConstraint(Sketcher.Constraint("DistanceX", 1, 3, 0, 3, 60.213761))
sketch14.addConstraint(Sketcher.Constraint("DistanceX", 2, 3, 1, 3, 60.213761))
sketch14.addConstraint(Sketcher.Constraint("DistanceX", -1, 1, 0, 3, 59.823196))
sketch14.addConstraint(Sketcher.Constraint("DistanceY", -1, 1, 1, 3, 26.247463))
pocket6 = body.newObject("PartDesign::Pocket", "Pocket005")
pocket6.Profile = sketch14
pocket6.Length = 5
pocket6.Reversed = True

sketch15 = body.newObject("Sketcher::SketchObject", "Sketch014")
sketch15.AttachmentSupport = (doc.getObject("XY_Plane"), [""])
sketch15.MapMode = "FlatFace"
sketch15.AttachmentOffset = App.Placement(App.Vector(0, 0, 78.11178), App.Rotation())
sketch15.addGeometry(Part.Circle(App.Vector(59.8, 10, 0), App.Vector(0, 0, 1), 1.5), False)
sketch15.addGeometry(Part.Circle(App.Vector(-0.4, 26.2, 0), App.Vector(0, 0, 1), 1.5), False)
sketch15.addGeometry(Part.Circle(App.Vector(-60.6, 10, 0), App.Vector(0, 0, 1), 1.5), False)
sketch15.addConstraint(Sketcher.Constraint("Equal", 0, 1))
sketch15.addConstraint(Sketcher.Constraint("Equal", 1, 2))
sketch15.addConstraint(Sketcher.Constraint("Horizontal", 0, 3, 2, 3))
sketch15.addConstraint(Sketcher.Constraint("Diameter", 0, 3.0))
sketch15.addConstraint(Sketcher.Constraint("DistanceY", -1, 1, 0, 3, 10.0))
sketch15.addConstraint(Sketcher.Constraint("DistanceX", 1, 3, 0, 3, 60.213761))
sketch15.addConstraint(Sketcher.Constraint("DistanceX", 2, 3, 1, 3, 60.213761))
sketch15.addConstraint(Sketcher.Constraint("DistanceX", -1, 1, 0, 3, 59.823196))
sketch15.addConstraint(Sketcher.Constraint("DistanceY", -1, 1, 1, 3, 26.247463))
pocket7 = body.newObject("PartDesign::Pocket", "Pocket006")
pocket7.Profile = sketch15
pocket7.Length = 5

sketch16 = body.newObject("Sketcher::SketchObject", "Sketch015")
sketch16.AttachmentSupport = (doc.getObject("YZ_Plane"), [""])
sketch16.MapMode = "FlatFace"
sketch16.AttachmentOffset = App.Placement(App.Vector(0, 0, -78.241969), App.Rotation())
sketch16.addGeometry(Part.Circle(App.Vector(10, 60.5, 0), App.Vector(0, 0, 1), 1.5), False)
sketch16.addGeometry(Part.Circle(App.Vector(10, 60.5, 0), App.Vector(0, 0, 1), 1), False)
sketch16.addGeometry(Part.Circle(App.Vector(10, -60, 0), App.Vector(0, 0, 1), 1.5), False)
sketch16.addGeometry(Part.Circle(App.Vector(10, -60, 0), App.Vector(0, 0, 1), 1), False)
sketch16.addGeometry(Part.Circle(App.Vector(26.2, 0.3, 0), App.Vector(0, 0, 1), 1.5), False)
sketch16.addGeometry(Part.Circle(App.Vector(26.2, 0.3, 0), App.Vector(0, 0, 1), 1), False)
sketch16.addConstraint(Sketcher.Constraint("Coincident", 1, 3, 0, 3))
sketch16.addConstraint(Sketcher.Constraint("Coincident", 3, 3, 2, 3))
sketch16.addConstraint(Sketcher.Constraint("Coincident", 5, 3, 4, 3))
sketch16.addConstraint(Sketcher.Constraint("Equal", 0, 2))
sketch16.addConstraint(Sketcher.Constraint("Equal", 1, 3))
sketch16.addConstraint(Sketcher.Constraint("Equal", 2, 4))
sketch16.addConstraint(Sketcher.Constraint("Equal", 3, 5))
sketch16.addConstraint(Sketcher.Constraint("Vertical", 1, 3, 2, 3))
sketch16.addConstraint(Sketcher.Constraint("Diameter", 0, 3.0))
sketch16.addConstraint(Sketcher.Constraint("Diameter", 1, 2.0))
sketch16.addConstraint(Sketcher.Constraint("DistanceX", -1, 1, 0, 3, 10.0))
sketch16.addConstraint(Sketcher.Constraint("DistanceY", -1, 1, 0, 3, 60.474138))
sketch16.addConstraint(Sketcher.Constraint("DistanceY", 4, 3, 0, 3, 60.213761))
sketch16.addConstraint(Sketcher.Constraint("DistanceY", 2, 3, 4, 3, 60.213761))
sketch16.addConstraint(Sketcher.Constraint("DistanceX", -1, 1, 4, 3, 26.247463))
pad9 = body.newObject("PartDesign::Pad", "Pad008")
pad9.Profile = sketch16
pad9.Length = 5

sketch17 = body.newObject("Sketcher::SketchObject", "Sketch016")
sketch17.AttachmentSupport = (doc.getObject("XY_Plane"), [""])
sketch17.MapMode = "FlatFace"
sketch17.AttachmentOffset = App.Placement(App.Vector(0, 0, 78.11178), App.Rotation())
sketch17.addGeometry(Part.Circle(App.Vector(-60.6, 10, 0), App.Vector(0, 0, 1), 1.5), False)
sketch17.addGeometry(Part.Circle(App.Vector(-60.6, 10, 0), App.Vector(0, 0, 1), 1), False)
sketch17.addGeometry(Part.Circle(App.Vector(-0.4, 26.2, 0), App.Vector(0, 0, 1), 1.5), False)
sketch17.addGeometry(Part.Circle(App.Vector(-0.4, 26.2, 0), App.Vector(0, 0, 1), 1), False)
sketch17.addGeometry(Part.Circle(App.Vector(59.8, 10, 0), App.Vector(0, 0, 1), 1.5), False)
sketch17.addGeometry(Part.Circle(App.Vector(59.8, 10, 0), App.Vector(0, 0, 1), 1), False)
sketch17.addConstraint(Sketcher.Constraint("Coincident", 1, 3, 0, 3))
sketch17.addConstraint(Sketcher.Constraint("Coincident", 3, 3, 2, 3))
sketch17.addConstraint(Sketcher.Constraint("Coincident", 5, 3, 4, 3))
sketch17.addConstraint(Sketcher.Constraint("Equal", 0, 2))
sketch17.addConstraint(Sketcher.Constraint("Equal", 1, 3))
sketch17.addConstraint(Sketcher.Constraint("Equal", 2, 4))
sketch17.addConstraint(Sketcher.Constraint("Equal", 3, 5))
sketch17.addConstraint(Sketcher.Constraint("Horizontal", 1, 3, 4, 3))
sketch17.addConstraint(Sketcher.Constraint("Diameter", 0, 3.0))
sketch17.addConstraint(Sketcher.Constraint("Diameter", 1, 2.0))
sketch17.addConstraint(Sketcher.Constraint("DistanceY", -1, 1, 0, 3, 10.0))
sketch17.addConstraint(Sketcher.Constraint("DistanceX", 0, 3, 2, 3, 60.213761))
sketch17.addConstraint(Sketcher.Constraint("DistanceX", 2, 3, 4, 3, 60.213761))
sketch17.addConstraint(Sketcher.Constraint("DistanceX", 0, 3, -1, 1, 60.604327))
sketch17.addConstraint(Sketcher.Constraint("DistanceY", -1, 1, 2, 3, 26.247463))
pad10 = body.newObject("PartDesign::Pad", "Pad009")
pad10.Profile = sketch17
pad10.Length = 5
pad10.Reversed = True

sketch18 = body.newObject("Sketcher::SketchObject", "Sketch017")
sketch18.AttachmentSupport = (doc.getObject("YZ_Plane"), [""])
sketch18.MapMode = "FlatFace"
sketch18.AttachmentOffset = App.Placement(App.Vector(0, 0, 77.460838), App.Rotation())
sketch18.addGeometry(Part.Circle(App.Vector(10, 60.5, 0), App.Vector(0, 0, 1), 1.5), False)
sketch18.addGeometry(Part.Circle(App.Vector(10, 60.5, 0), App.Vector(0, 0, 1), 1), False)
sketch18.addGeometry(Part.Circle(App.Vector(10, -60, 0), App.Vector(0, 0, 1), 1.5), False)
sketch18.addGeometry(Part.Circle(App.Vector(10, -60, 0), App.Vector(0, 0, 1), 1), False)
sketch18.addGeometry(Part.Circle(App.Vector(26.2, 0.3, 0), App.Vector(0, 0, 1), 1.5), False)
sketch18.addGeometry(Part.Circle(App.Vector(26.2, 0.3, 0), App.Vector(0, 0, 1), 1), False)
sketch18.addConstraint(Sketcher.Constraint("Coincident", 1, 3, 0, 3))
sketch18.addConstraint(Sketcher.Constraint("Coincident", 3, 3, 2, 3))
sketch18.addConstraint(Sketcher.Constraint("Coincident", 5, 3, 4, 3))
sketch18.addConstraint(Sketcher.Constraint("Equal", 0, 2))
sketch18.addConstraint(Sketcher.Constraint("Equal", 1, 3))
sketch18.addConstraint(Sketcher.Constraint("Equal", 2, 4))
sketch18.addConstraint(Sketcher.Constraint("Equal", 3, 5))
sketch18.addConstraint(Sketcher.Constraint("Vertical", 1, 3, 2, 3))
sketch18.addConstraint(Sketcher.Constraint("Diameter", 0, 3.0))
sketch18.addConstraint(Sketcher.Constraint("Diameter", 1, 2.0))
sketch18.addConstraint(Sketcher.Constraint("DistanceX", -1, 1, 0, 3, 10.0))
sketch18.addConstraint(Sketcher.Constraint("DistanceY", -1, 1, 0, 3, 60.474138))
sketch18.addConstraint(Sketcher.Constraint("DistanceY", 4, 3, 0, 3, 60.213761))
sketch18.addConstraint(Sketcher.Constraint("DistanceY", 2, 3, 4, 3, 60.213761))
sketch18.addConstraint(Sketcher.Constraint("DistanceX", -1, 1, 4, 3, 26.247463))
pad11 = body.newObject("PartDesign::Pad", "Pad010")
pad11.Profile = sketch18
pad11.Length = 5
pad11.Reversed = True

sketch19 = body.newObject("Sketcher::SketchObject", "Sketch018")
sketch19.AttachmentSupport = (doc.getObject("XY_Plane"), [""])
sketch19.MapMode = "FlatFace"
sketch19.AttachmentOffset = App.Placement(App.Vector(0, 0, -77.591027), App.Rotation())
sketch19.addGeometry(Part.Circle(App.Vector(59.8, 10, 0), App.Vector(0, 0, 1), 1.5), False)
sketch19.addGeometry(Part.Circle(App.Vector(59.8, 10, 0), App.Vector(0, 0, 1), 1), False)
sketch19.addGeometry(Part.Circle(App.Vector(-60.6, 10, 0), App.Vector(0, 0, 1), 1.5), False)
sketch19.addGeometry(Part.Circle(App.Vector(-60.6, 10, 0), App.Vector(0, 0, 1), 1), False)
sketch19.addGeometry(Part.Circle(App.Vector(-0.4, 26.2, 0), App.Vector(0, 0, 1), 1.5), False)
sketch19.addGeometry(Part.Circle(App.Vector(-0.4, 26.2, 0), App.Vector(0, 0, 1), 1), False)
sketch19.addConstraint(Sketcher.Constraint("Coincident", 1, 3, 0, 3))
sketch19.addConstraint(Sketcher.Constraint("Coincident", 3, 3, 2, 3))
sketch19.addConstraint(Sketcher.Constraint("Coincident", 5, 3, 4, 3))
sketch19.addConstraint(Sketcher.Constraint("Equal", 0, 2))
sketch19.addConstraint(Sketcher.Constraint("Equal", 1, 3))
sketch19.addConstraint(Sketcher.Constraint("Equal", 2, 4))
sketch19.addConstraint(Sketcher.Constraint("Equal", 3, 5))
sketch19.addConstraint(Sketcher.Constraint("Horizontal", 1, 3, 2, 3))
sketch19.addConstraint(Sketcher.Constraint("Diameter", 0, 3.0))
sketch19.addConstraint(Sketcher.Constraint("Diameter", 1, 2.0))
sketch19.addConstraint(Sketcher.Constraint("DistanceY", -1, 1, 0, 3, 10.0))
sketch19.addConstraint(Sketcher.Constraint("DistanceX", 2, 3, 4, 3, 60.213761))
sketch19.addConstraint(Sketcher.Constraint("DistanceX", 4, 3, 0, 3, 60.213761))
sketch19.addConstraint(Sketcher.Constraint("DistanceX", -1, 1, 0, 3, 59.823196))
sketch19.addConstraint(Sketcher.Constraint("DistanceY", -1, 1, 4, 3, 26.247463))
pad12 = body.newObject("PartDesign::Pad", "Pad011")
pad12.Profile = sketch19
pad12.Length = 5

doc.recompute()
